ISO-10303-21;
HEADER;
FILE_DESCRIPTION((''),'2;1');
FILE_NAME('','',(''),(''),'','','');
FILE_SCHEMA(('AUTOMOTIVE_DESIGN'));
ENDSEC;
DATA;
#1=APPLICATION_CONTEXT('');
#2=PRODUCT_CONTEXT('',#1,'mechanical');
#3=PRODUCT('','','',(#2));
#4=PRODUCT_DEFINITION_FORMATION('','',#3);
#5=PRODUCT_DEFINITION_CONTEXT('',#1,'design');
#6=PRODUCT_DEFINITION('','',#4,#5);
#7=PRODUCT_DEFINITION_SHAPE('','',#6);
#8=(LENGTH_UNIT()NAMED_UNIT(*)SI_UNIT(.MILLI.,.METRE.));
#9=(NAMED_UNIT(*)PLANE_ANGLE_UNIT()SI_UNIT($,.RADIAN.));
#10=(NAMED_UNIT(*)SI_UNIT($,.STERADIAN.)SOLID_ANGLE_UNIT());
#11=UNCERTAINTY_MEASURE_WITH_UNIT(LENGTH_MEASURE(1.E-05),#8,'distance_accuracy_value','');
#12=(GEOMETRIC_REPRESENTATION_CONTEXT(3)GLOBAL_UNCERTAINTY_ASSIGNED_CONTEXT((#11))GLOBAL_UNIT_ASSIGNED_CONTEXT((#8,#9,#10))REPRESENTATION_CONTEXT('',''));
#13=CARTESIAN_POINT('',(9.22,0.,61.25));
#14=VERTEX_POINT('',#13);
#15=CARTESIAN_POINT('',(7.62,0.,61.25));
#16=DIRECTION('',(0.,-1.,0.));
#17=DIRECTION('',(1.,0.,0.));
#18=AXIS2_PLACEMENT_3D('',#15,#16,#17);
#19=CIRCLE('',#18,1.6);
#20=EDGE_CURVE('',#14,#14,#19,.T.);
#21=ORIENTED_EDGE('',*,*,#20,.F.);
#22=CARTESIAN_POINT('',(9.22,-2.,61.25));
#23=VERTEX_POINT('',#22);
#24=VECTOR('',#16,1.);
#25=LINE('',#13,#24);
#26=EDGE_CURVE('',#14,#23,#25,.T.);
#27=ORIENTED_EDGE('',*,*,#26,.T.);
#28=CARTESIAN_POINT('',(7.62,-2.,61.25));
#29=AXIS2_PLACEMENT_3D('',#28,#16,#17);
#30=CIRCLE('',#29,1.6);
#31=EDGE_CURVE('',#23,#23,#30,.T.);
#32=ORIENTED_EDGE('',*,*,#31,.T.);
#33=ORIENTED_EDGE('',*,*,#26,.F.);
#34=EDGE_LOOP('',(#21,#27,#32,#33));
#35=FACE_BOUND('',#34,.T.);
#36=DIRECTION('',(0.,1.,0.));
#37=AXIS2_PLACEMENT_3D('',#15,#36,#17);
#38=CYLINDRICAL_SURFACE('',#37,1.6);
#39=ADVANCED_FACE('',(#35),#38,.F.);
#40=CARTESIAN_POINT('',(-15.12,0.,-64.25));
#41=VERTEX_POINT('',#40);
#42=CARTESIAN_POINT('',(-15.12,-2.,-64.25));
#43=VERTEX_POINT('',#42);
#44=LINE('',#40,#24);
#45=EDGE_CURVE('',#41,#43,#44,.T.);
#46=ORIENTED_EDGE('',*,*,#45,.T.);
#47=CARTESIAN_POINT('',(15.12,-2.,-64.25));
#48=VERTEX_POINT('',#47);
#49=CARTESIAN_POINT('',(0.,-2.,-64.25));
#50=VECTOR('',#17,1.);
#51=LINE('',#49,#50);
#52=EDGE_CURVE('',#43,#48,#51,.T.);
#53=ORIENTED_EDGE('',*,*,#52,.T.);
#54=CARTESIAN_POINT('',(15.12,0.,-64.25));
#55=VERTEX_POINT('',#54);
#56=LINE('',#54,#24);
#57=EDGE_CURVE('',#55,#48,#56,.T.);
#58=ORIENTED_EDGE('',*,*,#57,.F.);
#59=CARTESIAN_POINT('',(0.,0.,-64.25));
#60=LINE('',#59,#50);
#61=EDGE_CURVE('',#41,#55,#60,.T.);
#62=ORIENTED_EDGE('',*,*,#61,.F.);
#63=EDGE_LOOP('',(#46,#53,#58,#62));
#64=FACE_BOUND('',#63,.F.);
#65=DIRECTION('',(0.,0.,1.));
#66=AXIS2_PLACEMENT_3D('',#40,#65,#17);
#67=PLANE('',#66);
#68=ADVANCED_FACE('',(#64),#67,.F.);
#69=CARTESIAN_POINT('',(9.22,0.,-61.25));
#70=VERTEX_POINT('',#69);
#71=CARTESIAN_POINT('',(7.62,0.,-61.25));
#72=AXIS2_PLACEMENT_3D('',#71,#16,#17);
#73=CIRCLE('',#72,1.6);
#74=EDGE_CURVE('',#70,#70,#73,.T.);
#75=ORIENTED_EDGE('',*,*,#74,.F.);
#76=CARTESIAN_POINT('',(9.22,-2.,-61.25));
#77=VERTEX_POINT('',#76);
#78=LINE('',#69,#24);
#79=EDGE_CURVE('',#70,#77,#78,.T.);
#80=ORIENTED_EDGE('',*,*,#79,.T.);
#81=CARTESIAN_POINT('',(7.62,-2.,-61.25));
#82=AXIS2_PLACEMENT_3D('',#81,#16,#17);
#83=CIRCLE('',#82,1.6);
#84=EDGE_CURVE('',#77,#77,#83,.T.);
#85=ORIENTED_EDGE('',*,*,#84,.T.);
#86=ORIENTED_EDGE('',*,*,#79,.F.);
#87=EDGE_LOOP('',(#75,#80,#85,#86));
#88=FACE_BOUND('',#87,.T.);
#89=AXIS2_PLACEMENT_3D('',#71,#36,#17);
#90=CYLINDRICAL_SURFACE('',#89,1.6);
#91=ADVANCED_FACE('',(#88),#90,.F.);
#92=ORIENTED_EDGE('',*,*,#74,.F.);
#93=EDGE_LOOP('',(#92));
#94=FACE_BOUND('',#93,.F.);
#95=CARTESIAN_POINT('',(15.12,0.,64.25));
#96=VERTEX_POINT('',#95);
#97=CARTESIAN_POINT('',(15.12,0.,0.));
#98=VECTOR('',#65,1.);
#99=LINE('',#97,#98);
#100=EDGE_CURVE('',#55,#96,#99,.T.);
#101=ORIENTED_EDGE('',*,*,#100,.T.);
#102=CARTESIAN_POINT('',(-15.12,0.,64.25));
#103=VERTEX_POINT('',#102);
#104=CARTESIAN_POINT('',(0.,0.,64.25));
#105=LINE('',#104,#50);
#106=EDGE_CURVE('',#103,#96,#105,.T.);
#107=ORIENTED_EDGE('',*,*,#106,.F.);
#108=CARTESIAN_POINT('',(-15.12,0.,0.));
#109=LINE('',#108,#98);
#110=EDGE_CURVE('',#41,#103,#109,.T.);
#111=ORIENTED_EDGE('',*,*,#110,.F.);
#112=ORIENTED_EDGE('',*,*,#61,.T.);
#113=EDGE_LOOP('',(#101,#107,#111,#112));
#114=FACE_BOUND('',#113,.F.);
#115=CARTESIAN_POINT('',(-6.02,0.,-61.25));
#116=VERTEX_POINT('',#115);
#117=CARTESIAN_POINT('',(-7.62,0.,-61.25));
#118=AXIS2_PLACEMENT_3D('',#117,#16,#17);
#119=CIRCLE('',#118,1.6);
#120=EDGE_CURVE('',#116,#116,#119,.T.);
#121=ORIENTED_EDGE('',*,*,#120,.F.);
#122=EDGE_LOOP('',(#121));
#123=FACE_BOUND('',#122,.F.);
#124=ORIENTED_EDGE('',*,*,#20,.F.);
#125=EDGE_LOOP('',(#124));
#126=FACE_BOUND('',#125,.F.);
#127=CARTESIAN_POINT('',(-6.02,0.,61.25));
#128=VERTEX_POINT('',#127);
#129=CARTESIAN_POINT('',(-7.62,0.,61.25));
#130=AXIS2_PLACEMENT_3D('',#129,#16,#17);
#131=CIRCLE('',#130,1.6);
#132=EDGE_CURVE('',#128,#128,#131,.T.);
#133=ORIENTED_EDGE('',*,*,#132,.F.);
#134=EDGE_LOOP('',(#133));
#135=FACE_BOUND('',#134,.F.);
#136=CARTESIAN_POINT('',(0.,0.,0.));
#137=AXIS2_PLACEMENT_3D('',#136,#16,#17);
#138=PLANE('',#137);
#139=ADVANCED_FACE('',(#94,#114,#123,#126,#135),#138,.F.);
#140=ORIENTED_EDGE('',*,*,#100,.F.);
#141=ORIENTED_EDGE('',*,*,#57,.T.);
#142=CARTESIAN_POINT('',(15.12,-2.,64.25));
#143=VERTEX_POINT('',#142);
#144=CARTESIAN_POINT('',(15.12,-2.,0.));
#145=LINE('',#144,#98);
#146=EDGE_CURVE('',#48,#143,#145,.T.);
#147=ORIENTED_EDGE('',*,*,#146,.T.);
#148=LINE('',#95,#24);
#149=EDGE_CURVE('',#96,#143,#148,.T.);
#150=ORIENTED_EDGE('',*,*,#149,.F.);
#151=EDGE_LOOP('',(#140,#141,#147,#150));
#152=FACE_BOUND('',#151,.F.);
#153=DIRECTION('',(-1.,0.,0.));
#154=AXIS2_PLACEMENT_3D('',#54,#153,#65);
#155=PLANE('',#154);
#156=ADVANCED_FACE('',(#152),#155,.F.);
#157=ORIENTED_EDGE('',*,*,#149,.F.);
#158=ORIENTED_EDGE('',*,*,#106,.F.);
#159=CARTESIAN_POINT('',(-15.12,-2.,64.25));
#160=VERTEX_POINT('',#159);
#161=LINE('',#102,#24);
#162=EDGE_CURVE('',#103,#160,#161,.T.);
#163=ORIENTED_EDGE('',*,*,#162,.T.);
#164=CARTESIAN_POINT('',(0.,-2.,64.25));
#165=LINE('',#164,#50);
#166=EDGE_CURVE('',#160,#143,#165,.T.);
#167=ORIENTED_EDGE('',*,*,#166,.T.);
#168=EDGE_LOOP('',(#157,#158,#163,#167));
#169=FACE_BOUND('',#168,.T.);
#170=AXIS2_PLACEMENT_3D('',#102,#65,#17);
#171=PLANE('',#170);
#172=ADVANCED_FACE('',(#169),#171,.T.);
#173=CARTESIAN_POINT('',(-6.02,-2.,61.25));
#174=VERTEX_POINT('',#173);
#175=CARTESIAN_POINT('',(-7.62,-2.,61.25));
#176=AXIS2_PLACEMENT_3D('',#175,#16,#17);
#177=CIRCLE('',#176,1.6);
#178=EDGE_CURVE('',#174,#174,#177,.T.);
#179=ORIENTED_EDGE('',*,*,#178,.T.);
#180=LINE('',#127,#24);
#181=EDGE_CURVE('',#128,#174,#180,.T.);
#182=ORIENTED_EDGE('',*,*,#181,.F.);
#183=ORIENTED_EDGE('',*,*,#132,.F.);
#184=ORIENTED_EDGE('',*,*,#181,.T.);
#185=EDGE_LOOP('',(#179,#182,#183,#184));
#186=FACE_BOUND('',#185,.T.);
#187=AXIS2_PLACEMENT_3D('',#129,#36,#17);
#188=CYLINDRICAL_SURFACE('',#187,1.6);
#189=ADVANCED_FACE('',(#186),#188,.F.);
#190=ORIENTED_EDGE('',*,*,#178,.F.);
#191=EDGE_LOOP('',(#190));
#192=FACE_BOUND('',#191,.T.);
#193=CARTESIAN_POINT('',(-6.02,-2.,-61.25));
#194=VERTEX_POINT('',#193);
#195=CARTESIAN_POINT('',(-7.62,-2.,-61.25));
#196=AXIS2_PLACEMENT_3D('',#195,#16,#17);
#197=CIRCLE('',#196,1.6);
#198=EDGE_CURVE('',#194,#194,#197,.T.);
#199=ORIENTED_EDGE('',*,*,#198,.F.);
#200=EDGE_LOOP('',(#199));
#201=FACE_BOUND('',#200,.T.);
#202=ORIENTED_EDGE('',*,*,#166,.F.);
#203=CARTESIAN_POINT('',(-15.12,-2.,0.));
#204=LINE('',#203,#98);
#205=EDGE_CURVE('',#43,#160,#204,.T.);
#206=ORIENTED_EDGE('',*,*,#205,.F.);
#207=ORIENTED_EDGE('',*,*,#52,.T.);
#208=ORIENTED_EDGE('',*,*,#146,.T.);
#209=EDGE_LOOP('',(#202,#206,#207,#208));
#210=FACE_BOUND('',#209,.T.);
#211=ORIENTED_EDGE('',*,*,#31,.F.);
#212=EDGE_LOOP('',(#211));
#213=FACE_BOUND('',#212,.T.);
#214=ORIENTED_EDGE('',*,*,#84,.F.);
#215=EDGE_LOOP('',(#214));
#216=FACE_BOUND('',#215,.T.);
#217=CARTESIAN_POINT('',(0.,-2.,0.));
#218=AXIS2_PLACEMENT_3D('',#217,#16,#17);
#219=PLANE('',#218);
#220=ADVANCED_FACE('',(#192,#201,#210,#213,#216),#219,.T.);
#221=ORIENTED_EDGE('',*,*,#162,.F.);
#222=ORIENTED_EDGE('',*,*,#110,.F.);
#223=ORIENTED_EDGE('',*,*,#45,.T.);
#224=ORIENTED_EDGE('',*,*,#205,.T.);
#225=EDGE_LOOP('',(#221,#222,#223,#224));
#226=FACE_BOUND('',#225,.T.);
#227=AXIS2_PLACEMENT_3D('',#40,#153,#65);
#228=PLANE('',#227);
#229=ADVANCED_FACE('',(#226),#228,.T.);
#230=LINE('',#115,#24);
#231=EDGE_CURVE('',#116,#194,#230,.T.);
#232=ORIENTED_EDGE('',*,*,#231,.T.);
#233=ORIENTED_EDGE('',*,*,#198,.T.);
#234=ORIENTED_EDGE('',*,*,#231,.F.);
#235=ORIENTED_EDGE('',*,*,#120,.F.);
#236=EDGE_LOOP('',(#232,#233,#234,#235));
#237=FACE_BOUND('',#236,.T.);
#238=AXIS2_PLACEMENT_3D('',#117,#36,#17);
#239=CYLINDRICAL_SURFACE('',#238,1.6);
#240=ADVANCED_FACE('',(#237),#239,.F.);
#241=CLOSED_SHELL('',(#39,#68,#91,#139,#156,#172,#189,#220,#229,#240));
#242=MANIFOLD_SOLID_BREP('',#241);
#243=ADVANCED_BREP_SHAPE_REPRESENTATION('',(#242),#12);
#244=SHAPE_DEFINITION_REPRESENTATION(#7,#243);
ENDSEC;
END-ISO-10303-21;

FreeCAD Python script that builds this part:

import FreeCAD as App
import Part
import Sketcher
Q = App.Units.Quantity

doc = App.newDocument("Part")
params = doc.addObject("Spreadsheet::Sheet", "Params")
for row, (alias, value) in enumerate([
    ("sketch1_diameter", "3.2 mm"),
    ("sketch1_height", "128.5 mm"),
    ("sketch1_width", "30.24 mm"),
    ("pad1_length", "2 mm"),
], start=1):
    params.set(f"A{row}", alias)
    params.set(f"B{row}", "=" + value)
    params.setAlias(f"B{row}", alias)

body = doc.addObject("PartDesign::Body", "Body")

# Sketch on XZ plane
sketch1 = body.newObject("Sketcher::SketchObject", "Sketch")
sketch1.AttachmentSupport = (doc.getObject("XZ_Plane"), [""])
sketch1.MapMode = "FlatFace"
sketch1.addGeometry([
    Part.LineSegment(App.Vector(-15.12, 64.25, 0), App.Vector(-15.12, -64.25, 0)),  # 0
    Part.LineSegment(App.Vector(-15.12, -64.25, 0), App.Vector(15.12, -64.25, 0)),  # 1
    Part.LineSegment(App.Vector(15.12, -64.25, 0), App.Vector(15.12, 64.25, 0)),  # 2
    Part.LineSegment(App.Vector(15.12, 64.25, 0), App.Vector(-15.12, 64.25, 0)),  # 3
    Part.Circle(App.Vector(-7.62, -61.25, 0), App.Vector(0, 0, 1), 1.6),  # 4
    Part.Circle(App.Vector(7.62, -61.25, 0), App.Vector(0, 0, 1), 1.6),  # 5
    Part.Circle(App.Vector(-7.62, 61.25, 0), App.Vector(0, 0, 1), 1.6),  # 6
    Part.Circle(App.Vector(7.62, 61.25, 0), App.Vector(0, 0, 1), 1.6),  # 7
], False)
sketch1.addConstraint([
    Sketcher.Constraint("Coincident", 0, 2, 1, 1),
    Sketcher.Constraint("Coincident", 1, 2, 2, 1),
    Sketcher.Constraint("Coincident", 2, 2, 3, 1),
    Sketcher.Constraint("Coincident", 3, 2, 0, 1),
    Sketcher.Constraint("Vertical", 0),
    Sketcher.Constraint("Horizontal", 1),
    Sketcher.Constraint("Vertical", 2),
    Sketcher.Constraint("Horizontal", 3),
    Sketcher.Constraint("Equal", 4, 5),
    Sketcher.Constraint("Equal", 5, 6),
    Sketcher.Constraint("Equal", 6, 7),
    Sketcher.Constraint("Symmetric", 5, 3, 6, 3, -1, 1),
    Sketcher.Constraint("Symmetric", 4, 3, 7, 3, -1, 1),
    Sketcher.Constraint("Symmetric", 0, 2, 2, 2, -1, 1),
    Sketcher.Constraint("Symmetric", 4, 3, 5, 3, -2),
    Sketcher.Constraint("Diameter", 4, Q("3.2 mm")),
    Sketcher.Constraint("DistanceY", 0, 2, 0, 1, Q("128.5 mm")),
    Sketcher.Constraint("DistanceY", 0, 2, 4, 3, Q("3 mm")),
    Sketcher.Constraint("DistanceX", 1, 1, 1, 2, Q("30.24 mm")),
    Sketcher.Constraint("DistanceX", 0, 2, 4, 3, Q("7.5 mm")),
])
sketch1.setExpression("Constraints[15]", "Params.sketch1_diameter")
sketch1.setExpression("Constraints[16]", "Params.sketch1_height")
sketch1.setExpression("Constraints[18]", "Params.sketch1_width")
pad1 = body.newObject("PartDesign::Pad", "Pad")
pad1.Profile = sketch1
pad1.setExpression("Length", "Params.pad1_length")

doc.recompute()
